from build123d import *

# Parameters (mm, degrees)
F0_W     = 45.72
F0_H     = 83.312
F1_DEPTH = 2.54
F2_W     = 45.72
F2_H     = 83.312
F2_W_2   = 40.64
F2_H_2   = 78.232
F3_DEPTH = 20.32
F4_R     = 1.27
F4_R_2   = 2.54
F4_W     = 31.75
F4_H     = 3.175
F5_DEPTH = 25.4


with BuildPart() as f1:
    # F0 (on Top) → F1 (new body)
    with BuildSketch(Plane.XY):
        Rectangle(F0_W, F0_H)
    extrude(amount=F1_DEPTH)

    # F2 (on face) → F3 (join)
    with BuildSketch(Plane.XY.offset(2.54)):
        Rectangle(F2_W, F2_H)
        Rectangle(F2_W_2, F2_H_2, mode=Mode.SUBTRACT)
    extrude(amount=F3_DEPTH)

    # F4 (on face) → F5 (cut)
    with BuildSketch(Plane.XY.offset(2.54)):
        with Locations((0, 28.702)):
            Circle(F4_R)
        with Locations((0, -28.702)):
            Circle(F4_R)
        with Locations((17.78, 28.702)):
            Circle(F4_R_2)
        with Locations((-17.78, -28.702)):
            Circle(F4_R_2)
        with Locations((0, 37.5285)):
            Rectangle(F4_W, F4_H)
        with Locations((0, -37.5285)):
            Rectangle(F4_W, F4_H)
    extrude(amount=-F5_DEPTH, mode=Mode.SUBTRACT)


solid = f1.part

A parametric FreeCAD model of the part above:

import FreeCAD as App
import Part
import Sketcher
from FreeCAD import Vector
Q = App.Units.Quantity

doc = App.newDocument("Part")
body = doc.addObject("PartDesign::Body", "Body")

# Sketch on XY plane
sketch1 = body.newObject("Sketcher::SketchObject", "Sketch")
sketch1.AttachmentSupport = (doc.getObject("XY_Plane"), [""])
sketch1.MapMode = "FlatFace"
sketch1.addGeometry(Part.LineSegment(Vector(-22.86, 41.656, 0), Vector(-22.86, -41.656, 0)), False)
sketch1.addGeometry(Part.LineSegment(Vector(-22.86, -41.656, 0), Vector(22.86, -41.656, 0)), False)
sketch1.addGeometry(Part.LineSegment(Vector(22.86, -41.656, 0), Vector(22.86, 41.656, 0)), False)
sketch1.addGeometry(Part.LineSegment(Vector(22.86, 41.656, 0), Vector(-22.86, 41.656, 0)), False)
sketch1.addConstraint(Sketcher.Constraint("Coincident", 0, 2, 1, 1))
sketch1.addConstraint(Sketcher.Constraint("Coincident", 1, 2, 2, 1))
sketch1.addConstraint(Sketcher.Constraint("Coincident", 2, 2, 3, 1))
sketch1.addConstraint(Sketcher.Constraint("Coincident", 3, 2, 0, 1))
sketch1.addConstraint(Sketcher.Constraint("Vertical", 0))
sketch1.addConstraint(Sketcher.Constraint("Horizontal", 1))
sketch1.addConstraint(Sketcher.Constraint("Vertical", 2))
sketch1.addConstraint(Sketcher.Constraint("Horizontal", 3))
sketch1.addConstraint(Sketcher.Constraint("Symmetric", 0, 2, 2, 2, -1, 1))
sketch1.addConstraint(Sketcher.Constraint("DistanceX", 1, 1, 1, 2, Q("1.8 in")))
sketch1.addConstraint(Sketcher.Constraint("DistanceY", 0, 2, 0, 1, Q("3.28 in")))
pad1 = body.newObject("PartDesign::Pad", "Pad")
pad1.Profile = sketch1
pad1.Length = Q("0.1 in")

# Sketch on XY plane
sketch2 = body.newObject("Sketcher::SketchObject", "Sketch001")
sketch2.AttachmentSupport = (doc.getObject("XY_Plane"), [""])
sketch2.MapMode = "FlatFace"
sketch2.AttachmentOffset = App.Placement(Vector(0, 0, 0.1 * 25.4), App.Rotation())
sketch2.addGeometry(Part.LineSegment(Vector(-22.86, 41.656, 0), Vector(-22.86, -41.656, 0)), False)
sketch2.addGeometry(Part.LineSegment(Vector(-22.86, -41.656, 0), Vector(22.86, -41.656, 0)), False)
sketch2.addGeometry(Part.LineSegment(Vector(22.86, -41.656, 0), Vector(22.86, 41.656, 0)), False)
sketch2.addGeometry(Part.LineSegment(Vector(22.86, 41.656, 0), Vector(-22.86, 41.656, 0)), False)
sketch2.addGeometry(Part.LineSegment(Vector(20.32, -39.116, 0), Vector(-20.32, -39.116, 0)), False)
sketch2.addGeometry(Part.LineSegment(Vector(-20.32, -39.116, 0), Vector(-20.32, 39.116, 0)), False)
sketch2.addGeometry(Part.LineSegment(Vector(-20.32, 39.116, 0), Vector(20.32, 39.116, 0)), False)
sketch2.addGeometry(Part.LineSegment(Vector(20.32, 39.116, 0), Vector(20.32, -39.116, 0)), False)
sketch2.addConstraint(Sketcher.Constraint("Coincident", 0, 2, 1, 1))
sketch2.addConstraint(Sketcher.Constraint("Coincident", 1, 2, 2, 1))
sketch2.addConstraint(Sketcher.Constraint("Coincident", 2, 2, 3, 1))
sketch2.addConstraint(Sketcher.Constraint("Coincident", 3, 2, 0, 1))
sketch2.addConstraint(Sketcher.Constraint("Coincident", 4, 2, 5, 1))
sketch2.addConstraint(Sketcher.Constraint("Coincident", 5, 2, 6, 1))
sketch2.addConstraint(Sketcher.Constraint("Coincident", 6, 2, 7, 1))
sketch2.addConstraint(Sketcher.Constraint("Coincident", 7, 2, 4, 1))
sketch2.addConstraint(Sketcher.Constraint("Vertical", 0))
sketch2.addConstraint(Sketcher.Constraint("Horizontal", 1))
sketch2.addConstraint(Sketcher.Constraint("Vertical", 2))
sketch2.addConstraint(Sketcher.Constraint("Horizontal", 3))
sketch2.addConstraint(Sketcher.Constraint("Horizontal", 4))
sketch2.addConstraint(Sketcher.Constraint("Vertical", 5))
sketch2.addConstraint(Sketcher.Constraint("Horizontal", 6))
sketch2.addConstraint(Sketcher.Constraint("Vertical", 7))
sketch2.addConstraint(Sketcher.Constraint("Symmetric", 0, 2, 2, 2, -1, 1))
sketch2.addConstraint(Sketcher.Constraint("Symmetric", 4, 2, 6, 2, -1, 1))
sketch2.addConstraint(Sketcher.Constraint("DistanceX", 1, 1, 1, 2, Q("1.8 in")))
sketch2.addConstraint(Sketcher.Constraint("DistanceX", 4, 2, 4, 1, Q("1.6 in")))
sketch2.addConstraint(Sketcher.Constraint("DistanceY", 0, 2, 0, 1, Q("3.28 in")))
sketch2.addConstraint(Sketcher.Constraint("DistanceY", 5, 1, 5, 2, Q("3.08 in")))
pad2 = body.newObject("PartDesign::Pad", "Pad001")
pad2.Profile = sketch2
pad2.Length = Q("0.8 in")

# Sketch on XY plane
sketch3 = body.newObject("Sketcher::SketchObject", "Sketch002")
sketch3.AttachmentSupport = (doc.getObject("XY_Plane"), [""])
sketch3.MapMode = "FlatFace"
sketch3.AttachmentOffset = App.Placement(Vector(0, 0, 0.1 * 25.4), App.Rotation())
sketch3.addGeometry(Part.Circle(Vector(0, 28.702, 0), Vector(0, 0, 1), 1.27), False)
sketch3.addGeometry(Part.Circle(Vector(0, -28.702, 0), Vector(0, 0, 1), 1.27), False)
sketch3.addGeometry(Part.Circle(Vector(17.78, 28.702, 0), Vector(0, 0, 1), 2.54), False)
sketch3.addGeometry(Part.Circle(Vector(-17.78, -28.702, 0), Vector(0, 0, 1), 2.54), False)
sketch3.addGeometry(Part.LineSegment(Vector(-15.875, 39.116, 0), Vector(-15.875, 35.941, 0)), False)
sketch3.addGeometry(Part.LineSegment(Vector(-15.875, 35.941, 0), Vector(15.875, 35.941, 0)), False)
sketch3.addGeometry(Part.LineSegment(Vector(15.875, 35.941, 0), Vector(15.875, 39.116, 0)), False)
sketch3.addGeometry(Part.LineSegment(Vector(15.875, 39.116, 0), Vector(-15.875, 39.116, 0)), False)
sketch3.addGeometry(Part.LineSegment(Vector(-15.875, -35.941, 0), Vector(-15.875, -39.116, 0)), False)
sketch3.addGeometry(Part.LineSegment(Vector(-15.875, -39.116, 0), Vector(15.875, -39.116, 0)), False)
sketch3.addGeometry(Part.LineSegment(Vector(15.875, -39.116, 0), Vector(15.875, -35.941, 0)), False)
sketch3.addGeometry(Part.LineSegment(Vector(15.875, -35.941, 0), Vector(-15.875, -35.941, 0)), False)
sketch3.addConstraint(Sketcher.Constraint("Coincident", 4, 2, 5, 1))
sketch3.addConstraint(Sketcher.Constraint("Coincident", 5, 2, 6, 1))
sketch3.addConstraint(Sketcher.Constraint("Coincident", 6, 2, 7, 1))
sketch3.addConstraint(Sketcher.Constraint("Coincident", 7, 2, 4, 1))
sketch3.addConstraint(Sketcher.Constraint("Coincident", 8, 2, 9, 1))
sketch3.addConstraint(Sketcher.Constraint("Coincident", 9, 2, 10, 1))
sketch3.addConstraint(Sketcher.Constraint("Coincident", 10, 2, 11, 1))
sketch3.addConstraint(Sketcher.Constraint("Coincident", 11, 2, 8, 1))
sketch3.addConstraint(Sketcher.Constraint("Vertical", 4))
sketch3.addConstraint(Sketcher.Constraint("Horizontal", 5))
sketch3.addConstraint(Sketcher.Constraint("Vertical", 6))
sketch3.addConstraint(Sketcher.Constraint("Horizontal", 7))
sketch3.addConstraint(Sketcher.Constraint("Vertical", 8))
sketch3.addConstraint(Sketcher.Constraint("Horizontal", 9))
sketch3.addConstraint(Sketcher.Constraint("Vertical", 10))
sketch3.addConstraint(Sketcher.Constraint("Horizontal", 11))
sketch3.addConstraint(Sketcher.Constraint("Equal", 0, 1))
sketch3.addConstraint(Sketcher.Constraint("Equal", 2, 3))
sketch3.addConstraint(Sketcher.Constraint("Symmetric", 0, 3, 1, 3, -1, 1))
sketch3.addConstraint(Sketcher.Constraint("Symmetric", 2, 3, 3, 3, -1, 1))
sketch3.addConstraint(Sketcher.Constraint("Symmetric", 6, 2, 8, 2, -1, 1))
sketch3.addConstraint(Sketcher.Constraint("Symmetric", 4, 2, 10, 2, -1, 1))
sketch3.addConstraint(Sketcher.Constraint("PointOnObject", 0, 3, -2))
sketch3.addConstraint(Sketcher.Constraint("Horizontal", 0, 3, 2, 3))
sketch3.addConstraint(Sketcher.Constraint("Vertical", 7, 2, 8, 2))
sketch3.addConstraint(Sketcher.Constraint("Diameter", 0, Q("0.1 in")))
sketch3.addConstraint(Sketcher.Constraint("Diameter", 2, Q("0.2 in")))
sketch3.addConstraint(Sketcher.Constraint("DistanceX", 5, 1, 5, 2, Q("1.25 in")))
sketch3.addConstraint(Sketcher.Constraint("DistanceX", -1, 1, 2, 3, Q("0.7 in")))
sketch3.addConstraint(Sketcher.Constraint("DistanceY", 4, 2, 4, 1, Q("0.125 in")))
sketch3.addConstraint(Sketcher.Constraint("DistanceY", -1, 1, 0, 3, Q("1.13 in")))
sketch3.addConstraint(Sketcher.Constraint("DistanceY", -1, 1, 6, 2, Q("1.54 in")))
pocket1 = body.newObject("PartDesign::Pocket", "Pocket")
pocket1.Profile = sketch3
pocket1.Length = Q("1 in")

doc.recompute()
